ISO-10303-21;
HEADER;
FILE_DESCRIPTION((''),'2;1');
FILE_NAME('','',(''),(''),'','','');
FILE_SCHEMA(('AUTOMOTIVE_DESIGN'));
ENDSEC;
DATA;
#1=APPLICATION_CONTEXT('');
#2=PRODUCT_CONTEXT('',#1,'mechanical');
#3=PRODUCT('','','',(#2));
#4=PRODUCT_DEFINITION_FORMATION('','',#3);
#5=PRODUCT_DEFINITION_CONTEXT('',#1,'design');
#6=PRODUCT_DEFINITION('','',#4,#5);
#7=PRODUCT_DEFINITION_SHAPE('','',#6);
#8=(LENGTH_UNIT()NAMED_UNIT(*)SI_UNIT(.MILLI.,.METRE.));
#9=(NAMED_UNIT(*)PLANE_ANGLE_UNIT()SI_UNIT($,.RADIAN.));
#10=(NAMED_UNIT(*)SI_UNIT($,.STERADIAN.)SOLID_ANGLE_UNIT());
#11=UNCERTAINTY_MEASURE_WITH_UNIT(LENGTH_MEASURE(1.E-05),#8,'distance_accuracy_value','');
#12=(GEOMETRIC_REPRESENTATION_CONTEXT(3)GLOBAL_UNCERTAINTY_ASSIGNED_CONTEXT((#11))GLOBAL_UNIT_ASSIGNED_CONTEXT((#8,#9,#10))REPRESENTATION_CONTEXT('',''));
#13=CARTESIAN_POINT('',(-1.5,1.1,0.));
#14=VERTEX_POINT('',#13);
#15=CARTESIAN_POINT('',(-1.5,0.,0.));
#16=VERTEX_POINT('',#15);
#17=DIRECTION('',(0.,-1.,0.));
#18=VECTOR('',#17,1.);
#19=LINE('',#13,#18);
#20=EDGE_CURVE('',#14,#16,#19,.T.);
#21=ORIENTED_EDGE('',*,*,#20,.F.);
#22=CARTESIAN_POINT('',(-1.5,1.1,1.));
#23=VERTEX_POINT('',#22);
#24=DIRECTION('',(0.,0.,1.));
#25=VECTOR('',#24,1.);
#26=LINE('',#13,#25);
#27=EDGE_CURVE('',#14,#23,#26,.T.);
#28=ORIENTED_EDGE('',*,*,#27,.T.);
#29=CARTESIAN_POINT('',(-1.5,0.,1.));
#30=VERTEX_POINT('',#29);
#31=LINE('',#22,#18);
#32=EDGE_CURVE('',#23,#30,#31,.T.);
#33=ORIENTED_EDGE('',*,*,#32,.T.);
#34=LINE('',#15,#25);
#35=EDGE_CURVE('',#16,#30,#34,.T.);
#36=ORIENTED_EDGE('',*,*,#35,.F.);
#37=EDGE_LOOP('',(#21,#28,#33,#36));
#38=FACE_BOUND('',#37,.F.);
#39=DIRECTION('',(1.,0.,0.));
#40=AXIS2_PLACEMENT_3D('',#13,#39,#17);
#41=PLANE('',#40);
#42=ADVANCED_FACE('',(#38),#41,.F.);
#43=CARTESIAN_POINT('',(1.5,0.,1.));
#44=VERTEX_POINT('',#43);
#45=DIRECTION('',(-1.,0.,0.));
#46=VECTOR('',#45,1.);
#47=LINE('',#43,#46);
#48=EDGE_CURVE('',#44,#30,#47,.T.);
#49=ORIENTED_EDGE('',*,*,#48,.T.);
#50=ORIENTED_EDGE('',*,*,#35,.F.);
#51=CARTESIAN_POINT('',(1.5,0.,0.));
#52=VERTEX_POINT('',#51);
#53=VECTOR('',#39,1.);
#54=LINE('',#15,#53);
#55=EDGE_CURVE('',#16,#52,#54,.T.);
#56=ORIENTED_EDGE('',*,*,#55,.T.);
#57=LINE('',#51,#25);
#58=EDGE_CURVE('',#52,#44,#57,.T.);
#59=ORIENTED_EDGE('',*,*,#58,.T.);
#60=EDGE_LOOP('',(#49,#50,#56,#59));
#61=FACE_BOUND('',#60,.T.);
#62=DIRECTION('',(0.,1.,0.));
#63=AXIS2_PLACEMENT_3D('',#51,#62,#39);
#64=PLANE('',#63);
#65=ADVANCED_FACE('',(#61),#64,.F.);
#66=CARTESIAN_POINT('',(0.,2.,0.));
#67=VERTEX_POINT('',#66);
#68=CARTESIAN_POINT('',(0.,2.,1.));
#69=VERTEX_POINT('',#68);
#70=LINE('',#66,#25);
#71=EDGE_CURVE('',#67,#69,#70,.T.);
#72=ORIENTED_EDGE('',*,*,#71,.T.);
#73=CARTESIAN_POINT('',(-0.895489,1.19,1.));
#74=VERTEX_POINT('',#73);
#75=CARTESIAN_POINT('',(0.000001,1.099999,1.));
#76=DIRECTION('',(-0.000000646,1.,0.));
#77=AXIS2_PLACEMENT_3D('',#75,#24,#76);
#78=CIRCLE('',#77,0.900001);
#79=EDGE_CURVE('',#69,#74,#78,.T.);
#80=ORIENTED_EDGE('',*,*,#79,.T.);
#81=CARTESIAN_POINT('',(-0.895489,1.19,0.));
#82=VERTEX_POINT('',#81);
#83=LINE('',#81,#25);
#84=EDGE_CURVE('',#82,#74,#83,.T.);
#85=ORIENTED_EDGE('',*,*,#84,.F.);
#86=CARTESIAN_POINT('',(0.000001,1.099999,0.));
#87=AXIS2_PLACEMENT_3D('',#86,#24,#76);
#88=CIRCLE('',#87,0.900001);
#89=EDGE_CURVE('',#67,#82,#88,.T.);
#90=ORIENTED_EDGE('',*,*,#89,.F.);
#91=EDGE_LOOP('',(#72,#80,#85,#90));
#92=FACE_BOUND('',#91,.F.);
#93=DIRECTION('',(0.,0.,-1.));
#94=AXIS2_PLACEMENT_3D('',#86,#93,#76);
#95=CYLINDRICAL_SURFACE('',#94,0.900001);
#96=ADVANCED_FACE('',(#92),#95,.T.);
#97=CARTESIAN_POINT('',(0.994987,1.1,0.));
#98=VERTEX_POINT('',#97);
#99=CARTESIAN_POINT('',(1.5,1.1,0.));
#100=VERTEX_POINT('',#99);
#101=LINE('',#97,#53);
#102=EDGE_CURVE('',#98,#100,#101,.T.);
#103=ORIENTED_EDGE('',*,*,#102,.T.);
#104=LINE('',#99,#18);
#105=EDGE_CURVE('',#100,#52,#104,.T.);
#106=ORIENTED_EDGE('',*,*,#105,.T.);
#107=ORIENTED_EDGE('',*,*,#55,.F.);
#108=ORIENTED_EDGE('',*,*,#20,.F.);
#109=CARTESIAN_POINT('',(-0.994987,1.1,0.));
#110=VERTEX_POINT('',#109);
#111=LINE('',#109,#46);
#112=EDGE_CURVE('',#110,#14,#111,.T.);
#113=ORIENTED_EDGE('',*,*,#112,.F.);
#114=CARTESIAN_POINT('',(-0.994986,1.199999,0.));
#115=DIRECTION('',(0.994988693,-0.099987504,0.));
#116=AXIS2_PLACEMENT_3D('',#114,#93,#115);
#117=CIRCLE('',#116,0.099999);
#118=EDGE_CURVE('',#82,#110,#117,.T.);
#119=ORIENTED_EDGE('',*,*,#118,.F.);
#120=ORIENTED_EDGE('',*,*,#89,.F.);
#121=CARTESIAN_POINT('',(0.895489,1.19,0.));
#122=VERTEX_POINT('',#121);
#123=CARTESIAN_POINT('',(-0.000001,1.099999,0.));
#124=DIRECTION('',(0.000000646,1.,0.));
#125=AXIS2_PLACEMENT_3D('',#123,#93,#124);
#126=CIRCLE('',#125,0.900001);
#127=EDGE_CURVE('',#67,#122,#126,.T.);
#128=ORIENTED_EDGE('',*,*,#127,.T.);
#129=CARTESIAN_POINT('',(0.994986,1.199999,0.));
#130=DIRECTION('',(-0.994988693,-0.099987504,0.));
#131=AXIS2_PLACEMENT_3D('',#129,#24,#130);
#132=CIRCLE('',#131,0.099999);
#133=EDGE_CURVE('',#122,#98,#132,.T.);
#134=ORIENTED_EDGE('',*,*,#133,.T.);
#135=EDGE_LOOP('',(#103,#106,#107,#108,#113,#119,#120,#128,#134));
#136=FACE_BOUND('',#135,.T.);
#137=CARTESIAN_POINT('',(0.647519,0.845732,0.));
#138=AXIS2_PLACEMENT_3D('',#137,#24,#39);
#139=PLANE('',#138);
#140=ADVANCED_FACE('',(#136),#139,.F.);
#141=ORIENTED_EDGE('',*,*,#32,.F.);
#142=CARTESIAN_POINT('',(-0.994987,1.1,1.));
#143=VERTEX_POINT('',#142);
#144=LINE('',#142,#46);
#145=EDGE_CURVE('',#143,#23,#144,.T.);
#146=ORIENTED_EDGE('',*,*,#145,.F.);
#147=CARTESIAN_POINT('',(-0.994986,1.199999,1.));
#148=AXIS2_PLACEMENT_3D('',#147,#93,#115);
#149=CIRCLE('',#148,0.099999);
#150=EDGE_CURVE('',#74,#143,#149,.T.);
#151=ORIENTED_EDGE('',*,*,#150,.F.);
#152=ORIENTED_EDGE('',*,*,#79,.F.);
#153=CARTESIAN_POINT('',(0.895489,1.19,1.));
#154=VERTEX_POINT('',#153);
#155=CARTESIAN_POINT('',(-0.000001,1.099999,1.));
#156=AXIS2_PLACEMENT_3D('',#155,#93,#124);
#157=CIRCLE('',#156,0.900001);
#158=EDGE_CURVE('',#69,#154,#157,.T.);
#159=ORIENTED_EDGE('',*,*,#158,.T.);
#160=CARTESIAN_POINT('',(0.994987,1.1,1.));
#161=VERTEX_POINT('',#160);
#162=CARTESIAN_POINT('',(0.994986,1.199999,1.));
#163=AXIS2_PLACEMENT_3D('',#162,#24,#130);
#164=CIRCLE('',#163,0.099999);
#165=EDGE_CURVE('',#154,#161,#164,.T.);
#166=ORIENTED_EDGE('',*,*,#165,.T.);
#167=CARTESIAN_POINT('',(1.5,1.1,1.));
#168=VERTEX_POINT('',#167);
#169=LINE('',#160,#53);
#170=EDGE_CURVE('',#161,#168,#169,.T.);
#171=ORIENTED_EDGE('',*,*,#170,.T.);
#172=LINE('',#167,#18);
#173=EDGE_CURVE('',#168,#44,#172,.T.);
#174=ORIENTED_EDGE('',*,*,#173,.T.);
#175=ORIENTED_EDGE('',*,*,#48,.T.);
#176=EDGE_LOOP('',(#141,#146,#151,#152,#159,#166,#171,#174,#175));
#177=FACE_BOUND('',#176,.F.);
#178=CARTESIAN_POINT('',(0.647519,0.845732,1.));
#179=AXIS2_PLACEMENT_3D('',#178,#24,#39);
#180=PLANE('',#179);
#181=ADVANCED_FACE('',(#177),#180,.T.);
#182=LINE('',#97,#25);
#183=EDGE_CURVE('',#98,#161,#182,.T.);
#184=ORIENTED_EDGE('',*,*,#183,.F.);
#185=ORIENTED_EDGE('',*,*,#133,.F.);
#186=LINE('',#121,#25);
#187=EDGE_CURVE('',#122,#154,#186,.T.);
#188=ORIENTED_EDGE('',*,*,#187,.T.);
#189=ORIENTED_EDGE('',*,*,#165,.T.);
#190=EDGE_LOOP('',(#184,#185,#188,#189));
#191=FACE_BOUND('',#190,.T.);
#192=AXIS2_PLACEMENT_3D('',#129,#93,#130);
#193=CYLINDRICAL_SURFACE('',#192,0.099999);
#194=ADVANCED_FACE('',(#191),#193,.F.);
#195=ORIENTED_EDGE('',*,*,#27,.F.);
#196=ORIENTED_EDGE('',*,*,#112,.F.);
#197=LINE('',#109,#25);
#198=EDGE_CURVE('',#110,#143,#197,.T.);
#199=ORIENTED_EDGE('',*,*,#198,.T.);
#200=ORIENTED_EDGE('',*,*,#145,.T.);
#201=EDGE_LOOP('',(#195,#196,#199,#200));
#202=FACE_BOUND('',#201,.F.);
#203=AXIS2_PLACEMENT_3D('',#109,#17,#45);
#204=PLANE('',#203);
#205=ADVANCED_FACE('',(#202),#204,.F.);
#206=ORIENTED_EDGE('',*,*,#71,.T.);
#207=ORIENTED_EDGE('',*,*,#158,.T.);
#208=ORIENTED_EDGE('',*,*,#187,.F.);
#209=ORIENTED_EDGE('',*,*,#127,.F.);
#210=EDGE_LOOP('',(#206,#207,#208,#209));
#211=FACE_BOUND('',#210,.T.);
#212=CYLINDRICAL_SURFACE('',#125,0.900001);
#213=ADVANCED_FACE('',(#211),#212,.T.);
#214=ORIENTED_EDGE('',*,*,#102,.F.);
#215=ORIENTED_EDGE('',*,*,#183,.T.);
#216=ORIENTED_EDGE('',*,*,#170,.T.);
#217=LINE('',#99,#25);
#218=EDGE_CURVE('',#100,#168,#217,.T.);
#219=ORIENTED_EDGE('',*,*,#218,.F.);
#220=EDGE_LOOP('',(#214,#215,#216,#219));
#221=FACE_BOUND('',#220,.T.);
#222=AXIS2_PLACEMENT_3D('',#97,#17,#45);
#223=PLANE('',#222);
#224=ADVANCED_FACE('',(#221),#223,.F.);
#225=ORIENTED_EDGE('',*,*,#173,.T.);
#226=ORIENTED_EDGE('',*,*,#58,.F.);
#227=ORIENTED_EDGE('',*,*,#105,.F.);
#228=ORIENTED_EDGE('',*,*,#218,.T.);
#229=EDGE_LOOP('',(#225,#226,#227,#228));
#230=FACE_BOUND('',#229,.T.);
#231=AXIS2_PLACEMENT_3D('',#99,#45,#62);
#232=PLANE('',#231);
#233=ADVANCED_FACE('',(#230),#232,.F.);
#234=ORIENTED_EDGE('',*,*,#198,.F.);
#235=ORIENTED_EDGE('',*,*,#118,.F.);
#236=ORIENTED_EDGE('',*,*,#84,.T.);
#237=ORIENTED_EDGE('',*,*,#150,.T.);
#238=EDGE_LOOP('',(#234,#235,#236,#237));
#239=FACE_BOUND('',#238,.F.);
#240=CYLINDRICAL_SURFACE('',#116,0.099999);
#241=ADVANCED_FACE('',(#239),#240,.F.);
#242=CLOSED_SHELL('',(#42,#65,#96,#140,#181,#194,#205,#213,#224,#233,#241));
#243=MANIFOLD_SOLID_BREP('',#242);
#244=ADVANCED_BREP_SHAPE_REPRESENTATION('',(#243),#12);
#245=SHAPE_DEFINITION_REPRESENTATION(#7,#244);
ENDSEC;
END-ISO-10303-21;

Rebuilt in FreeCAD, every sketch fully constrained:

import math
import FreeCAD as App
import Part
import Sketcher
Q = App.Units.Quantity

doc = App.newDocument("Part")
body = doc.addObject("PartDesign::Body", "Body")

# Sketch on XY plane
sketch1 = body.newObject("Sketcher::SketchObject", "Sketch")
sketch1.AttachmentSupport = (doc.getObject("XY_Plane"), [""])
sketch1.MapMode = "FlatFace"
sketch1.addGeometry([
    Part.LineSegment(App.Vector(-1.5, 0, 0), App.Vector(0, 0, 0)),  # 0
    Part.LineSegment(App.Vector(0, 0, 0), App.Vector(0, 2, 0)),  # 1
    Part.ArcOfCircle(Part.Circle(App.Vector(0, 1.1, 0), App.Vector(0, 0, 1), 0.9), math.radians(90), math.radians(174)),  # 2
    Part.ArcOfCircle(Part.Circle(App.Vector(-0.99, 1.2, 0), App.Vector(0, 0, 1), 0.1), math.radians(-90), math.radians(-6)),  # 3
    Part.LineSegment(App.Vector(-0.99, 1.1, 0), App.Vector(-1.5, 1.1, 0)),  # 4
    Part.LineSegment(App.Vector(-1.5, 1.1, 0), App.Vector(-1.5, 0, 0)),  # 5
], False)
sketch1.addConstraint([
    Sketcher.Constraint("Coincident", 0, 2, 1, 1),
    Sketcher.Constraint("Coincident", 1, 2, 2, 1),
    Sketcher.Constraint("Coincident", 2, 2, 3, 2),
    Sketcher.Constraint("Coincident", 3, 1, 4, 1),
    Sketcher.Constraint("Coincident", 4, 2, 5, 1),
    Sketcher.Constraint("Coincident", 5, 2, 0, 1),
    Sketcher.Constraint("Horizontal", 0),
    Sketcher.Constraint("Vertical", 1),
    Sketcher.Constraint("Horizontal", 4),
    Sketcher.Constraint("Vertical", 5),
    Sketcher.Constraint("Coincident", 0, 2, -1, 1),
    Sketcher.Constraint("PointOnObject", 2, 3, -2),
    Sketcher.Constraint("Horizontal", 2, 3, 3, 1),
    Sketcher.Constraint("Radius", 2, Q("0.900001 mm")),
    Sketcher.Constraint("Radius", 3, Q("0.099999 mm")),
    Sketcher.Constraint("DistanceY", 1, 1, 1, 2, Q("2 mm")),
    Sketcher.Constraint("DistanceX", 0, 1, 0, 2, Q("1.5 mm")),
    Sketcher.Constraint("DistanceY", -1, 1, 2, 2, Q("1.19 mm")),
    Sketcher.Constraint("DistanceX", 3, 1, 2, 2, Q("0.099498 mm")),
])
pad1 = body.newObject("PartDesign::Pad", "Pad")
pad1.Profile = sketch1
pad1.Length = 1
body2 = doc.addObject("PartDesign::Body", "Body001")
doc.recompute()

body2.BaseFeature = body
doc.recompute()

mirroring = doc.addObject("Part::Mirroring", "Mirroring")
mirroring.Source = body
mirroring.Base = App.Vector(0, 0, 0)
mirroring.Normal = App.Vector(1, 0, 0)
body3 = doc.addObject("PartDesign::Body", "Body002")
body3.BaseFeature = mirroring
boolean = body2.newObject("PartDesign::Boolean", "Boolean")
boolean.Type = "Fuse"
boolean.addObjects([body3])
doc.recompute()
mirroring.Visibility = False

doc.recompute()
